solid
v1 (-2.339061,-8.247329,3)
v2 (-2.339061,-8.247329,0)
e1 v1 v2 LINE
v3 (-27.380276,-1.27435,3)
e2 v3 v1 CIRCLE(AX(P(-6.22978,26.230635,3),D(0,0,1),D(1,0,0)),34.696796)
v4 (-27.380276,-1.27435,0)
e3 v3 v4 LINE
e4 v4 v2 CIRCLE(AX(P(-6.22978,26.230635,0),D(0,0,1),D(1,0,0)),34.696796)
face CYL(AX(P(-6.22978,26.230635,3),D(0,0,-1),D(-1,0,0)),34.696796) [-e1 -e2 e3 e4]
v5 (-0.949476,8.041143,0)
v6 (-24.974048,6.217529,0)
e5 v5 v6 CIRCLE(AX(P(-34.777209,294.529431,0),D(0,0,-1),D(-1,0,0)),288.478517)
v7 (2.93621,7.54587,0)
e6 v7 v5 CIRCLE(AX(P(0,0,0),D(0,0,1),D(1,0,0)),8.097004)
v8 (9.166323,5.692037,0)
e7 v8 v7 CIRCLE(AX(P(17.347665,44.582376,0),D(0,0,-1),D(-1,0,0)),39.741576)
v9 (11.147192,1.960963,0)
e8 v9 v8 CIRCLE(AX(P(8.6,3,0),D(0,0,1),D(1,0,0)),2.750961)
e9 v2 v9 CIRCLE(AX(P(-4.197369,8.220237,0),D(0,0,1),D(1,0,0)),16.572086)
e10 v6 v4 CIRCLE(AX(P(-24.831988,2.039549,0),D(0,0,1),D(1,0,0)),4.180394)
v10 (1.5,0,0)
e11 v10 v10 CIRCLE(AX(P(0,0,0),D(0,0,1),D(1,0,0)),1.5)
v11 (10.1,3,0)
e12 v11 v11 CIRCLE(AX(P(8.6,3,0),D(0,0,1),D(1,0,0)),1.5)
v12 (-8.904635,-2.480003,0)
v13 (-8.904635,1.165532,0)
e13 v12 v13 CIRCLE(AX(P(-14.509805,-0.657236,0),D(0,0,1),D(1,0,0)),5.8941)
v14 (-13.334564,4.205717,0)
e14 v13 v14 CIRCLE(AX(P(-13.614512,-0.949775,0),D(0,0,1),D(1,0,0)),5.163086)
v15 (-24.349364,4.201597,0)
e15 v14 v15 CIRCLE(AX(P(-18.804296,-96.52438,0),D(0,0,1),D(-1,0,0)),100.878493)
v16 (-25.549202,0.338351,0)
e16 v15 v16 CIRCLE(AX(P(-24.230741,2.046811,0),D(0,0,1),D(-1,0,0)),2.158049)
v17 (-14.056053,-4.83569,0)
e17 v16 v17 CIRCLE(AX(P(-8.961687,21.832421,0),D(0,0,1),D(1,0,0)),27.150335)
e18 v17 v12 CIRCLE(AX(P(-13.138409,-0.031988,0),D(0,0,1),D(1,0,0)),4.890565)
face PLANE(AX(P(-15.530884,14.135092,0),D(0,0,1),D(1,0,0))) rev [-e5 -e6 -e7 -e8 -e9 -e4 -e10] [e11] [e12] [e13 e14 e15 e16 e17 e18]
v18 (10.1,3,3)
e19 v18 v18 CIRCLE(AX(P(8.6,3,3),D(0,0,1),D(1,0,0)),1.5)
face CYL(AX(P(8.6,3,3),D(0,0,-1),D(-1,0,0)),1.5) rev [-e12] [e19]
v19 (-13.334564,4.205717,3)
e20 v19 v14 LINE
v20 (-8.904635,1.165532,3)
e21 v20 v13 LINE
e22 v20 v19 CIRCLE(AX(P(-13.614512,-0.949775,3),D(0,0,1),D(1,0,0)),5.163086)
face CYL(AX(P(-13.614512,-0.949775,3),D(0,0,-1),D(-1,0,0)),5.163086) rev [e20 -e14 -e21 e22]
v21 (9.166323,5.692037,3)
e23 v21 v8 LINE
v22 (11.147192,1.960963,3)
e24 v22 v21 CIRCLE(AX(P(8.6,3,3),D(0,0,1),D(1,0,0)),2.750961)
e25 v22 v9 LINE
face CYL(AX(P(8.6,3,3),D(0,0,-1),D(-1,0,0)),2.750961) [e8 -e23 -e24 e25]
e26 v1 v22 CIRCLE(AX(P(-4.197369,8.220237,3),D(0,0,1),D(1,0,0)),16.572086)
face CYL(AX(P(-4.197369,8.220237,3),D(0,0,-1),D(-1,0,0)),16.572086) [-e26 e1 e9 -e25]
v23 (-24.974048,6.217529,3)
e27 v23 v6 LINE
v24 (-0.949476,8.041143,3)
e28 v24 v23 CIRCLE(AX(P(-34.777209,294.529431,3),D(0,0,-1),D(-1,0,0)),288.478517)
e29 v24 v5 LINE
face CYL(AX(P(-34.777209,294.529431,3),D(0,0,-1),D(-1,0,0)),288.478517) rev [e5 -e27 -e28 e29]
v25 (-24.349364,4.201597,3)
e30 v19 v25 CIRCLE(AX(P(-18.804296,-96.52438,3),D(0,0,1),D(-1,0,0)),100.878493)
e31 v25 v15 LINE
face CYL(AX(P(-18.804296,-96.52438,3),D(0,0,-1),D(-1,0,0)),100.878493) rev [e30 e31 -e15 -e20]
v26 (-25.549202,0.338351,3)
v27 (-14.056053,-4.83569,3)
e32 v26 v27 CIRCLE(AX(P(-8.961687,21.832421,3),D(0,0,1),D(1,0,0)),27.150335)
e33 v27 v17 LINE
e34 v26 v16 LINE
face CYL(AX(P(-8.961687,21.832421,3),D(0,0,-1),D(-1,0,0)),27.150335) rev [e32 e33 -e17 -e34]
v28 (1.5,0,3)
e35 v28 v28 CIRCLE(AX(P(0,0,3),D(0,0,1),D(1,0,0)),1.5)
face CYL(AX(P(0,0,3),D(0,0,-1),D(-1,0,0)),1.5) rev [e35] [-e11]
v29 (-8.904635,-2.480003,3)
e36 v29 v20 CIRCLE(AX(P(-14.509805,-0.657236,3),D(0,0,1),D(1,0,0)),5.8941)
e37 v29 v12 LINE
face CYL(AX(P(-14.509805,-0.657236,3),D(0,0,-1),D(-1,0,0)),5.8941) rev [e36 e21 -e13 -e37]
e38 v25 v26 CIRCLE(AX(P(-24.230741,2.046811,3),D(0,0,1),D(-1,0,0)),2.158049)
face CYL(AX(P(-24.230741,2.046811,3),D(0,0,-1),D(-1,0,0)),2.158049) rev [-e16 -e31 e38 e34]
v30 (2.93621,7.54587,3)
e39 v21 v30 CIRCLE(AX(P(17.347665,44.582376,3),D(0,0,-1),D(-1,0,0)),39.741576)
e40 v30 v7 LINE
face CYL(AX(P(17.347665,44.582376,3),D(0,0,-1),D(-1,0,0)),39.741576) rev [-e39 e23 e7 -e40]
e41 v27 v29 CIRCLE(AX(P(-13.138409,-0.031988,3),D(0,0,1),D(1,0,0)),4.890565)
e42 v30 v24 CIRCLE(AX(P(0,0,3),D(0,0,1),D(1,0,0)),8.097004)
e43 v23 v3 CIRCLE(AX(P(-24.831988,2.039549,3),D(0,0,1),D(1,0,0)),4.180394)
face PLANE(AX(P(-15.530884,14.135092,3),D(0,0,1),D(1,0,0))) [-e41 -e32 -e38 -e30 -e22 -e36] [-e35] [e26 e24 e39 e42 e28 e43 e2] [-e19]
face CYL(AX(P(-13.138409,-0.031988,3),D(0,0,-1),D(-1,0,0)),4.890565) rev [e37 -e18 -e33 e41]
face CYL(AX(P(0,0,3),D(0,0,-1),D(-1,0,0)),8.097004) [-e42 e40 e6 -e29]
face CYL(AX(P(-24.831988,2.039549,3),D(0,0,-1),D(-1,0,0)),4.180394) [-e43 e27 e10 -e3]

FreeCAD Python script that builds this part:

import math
import FreeCAD as App
import Part
import Sketcher
from FreeCAD import Vector
Q = App.Units.Quantity

doc = App.newDocument("Part")
params = doc.addObject("Spreadsheet::Sheet", "Params")
for row, (alias, value) in enumerate([
    ("sketch1_diameter", "3 mm"),
    ("pad1_length", "3 mm"),
], start=1):
    params.set(f"A{row}", alias)
    params.set(f"B{row}", "=" + value)
    params.setAlias(f"B{row}", alias)

body = doc.addObject("PartDesign::Body", "Body")

# Sketch on XY plane
sketch1 = body.newObject("Sketcher::SketchObject", "Sketch")
sketch1.AttachmentSupport = (doc.getObject("XY_Plane"), [""])
sketch1.MapMode = "FlatFace"
sketch1.addGeometry(Part.ArcOfCircle(Part.Circle(Vector(-6.22978, 26.230635, 0), Vector(0, 0, 1), 34.696796), math.radians(-127.559189), math.radians(-83.561607)), False)
sketch1.addGeometry(Part.ArcOfCircle(Part.Circle(Vector(-4.197369, 8.220237, 0), Vector(0, 0, 1), 16.572086), math.radians(-83.561607), math.radians(-22.191279)), False)
sketch1.addGeometry(Part.ArcOfCircle(Part.Circle(Vector(8.6, 3, 0), Vector(0, 0, 1), 2.750961), math.radians(-22.191279), math.radians(78.119944)), False)
sketch1.addGeometry(Part.ArcOfCircle(Part.Circle(Vector(17.347665, 44.582376, 0), Vector(0, 0, 1), 39.741576), math.radians(-111.261751), math.radians(-101.880056)), False)
sketch1.addGeometry(Part.ArcOfCircle(Part.Circle(Vector(0, 0, 0), Vector(0, 0, 1), 8.097004), math.radians(68.738249), math.radians(96.734144)), False)
sketch1.addGeometry(Part.ArcOfCircle(Part.Circle(Vector(-34.777209, 294.52943, 0), Vector(0, 0, 1), 288.478517), math.radians(-88.052583), math.radians(-83.265856)), False)
sketch1.addGeometry(Part.ArcOfCircle(Part.Circle(Vector(-24.831988, 2.039549, 0), Vector(0, 0, 1), 4.180394), math.radians(91.947417), math.radians(232.440811)), False)
sketch1.addGeometry(Part.ArcOfCircle(Part.Circle(Vector(-8.961687, 21.832421, 0), Vector(0, 0, 1), 27.150335), math.radians(-127.658275), math.radians(-100.814825)), False)
sketch1.addGeometry(Part.ArcOfCircle(Part.Circle(Vector(-24.230741, 2.046811, 0), Vector(0, 0, 1), 2.158049), math.radians(93.151011), math.radians(232.341726)), False)
sketch1.addGeometry(Part.ArcOfCircle(Part.Circle(Vector(-18.804296, -96.52438, 0), Vector(0, 0, 1), 100.878493), math.radians(86.891842), math.radians(93.151011)), False)
sketch1.addGeometry(Part.ArcOfCircle(Part.Circle(Vector(-13.614512, -0.949775, 0), Vector(0, 0, 1), 5.163086), math.radians(24.185866), math.radians(86.891842)), False)
sketch1.addGeometry(Part.ArcOfCircle(Part.Circle(Vector(-14.509805, -0.657236, 0), Vector(0, 0, 1), 5.8941), math.radians(-18.014212), math.radians(18.014212)), False)
sketch1.addGeometry(Part.ArcOfCircle(Part.Circle(Vector(-13.138409, -0.031988, 0), Vector(0, 0, 1), 4.890565), math.radians(-100.814825), math.radians(-30.036978)), False)
sketch1.addGeometry(Part.Circle(Vector(0, 0, 0), Vector(0, 0, 1), 1.5), False)
sketch1.addGeometry(Part.Circle(Vector(8.6, 3, 0), Vector(0, 0, 1), 1.5), False)
sketch1.addConstraint(Sketcher.Constraint("Tangent", 0, 2, 1, 1))
sketch1.addConstraint(Sketcher.Constraint("Tangent", 1, 2, 2, 1))
sketch1.addConstraint(Sketcher.Constraint("Tangent", 2, 2, 3, 2))
sketch1.addConstraint(Sketcher.Constraint("Tangent", 3, 1, 4, 1))
sketch1.addConstraint(Sketcher.Constraint("Tangent", 4, 2, 5, 2))
sketch1.addConstraint(Sketcher.Constraint("Tangent", 5, 1, 6, 1))
sketch1.addConstraint(Sketcher.Constraint("Tangent", 6, 2, 0, 1))
sketch1.addConstraint(Sketcher.Constraint("Tangent", 7, 1, 8, 2))
sketch1.addConstraint(Sketcher.Constraint("Tangent", 8, 1, 9, 2))
sketch1.addConstraint(Sketcher.Constraint("Tangent", 9, 1, 10, 2))
sketch1.addConstraint(Sketcher.Constraint("Coincident", 10, 1, 11, 2))
sketch1.addConstraint(Sketcher.Constraint("Coincident", 11, 1, 12, 2))
sketch1.addConstraint(Sketcher.Constraint("Tangent", 12, 1, 7, 2))
sketch1.addConstraint(Sketcher.Constraint("Coincident", 4, 3, -1, 1))
sketch1.addConstraint(Sketcher.Constraint("Coincident", 13, 3, -1, 1))
sketch1.addConstraint(Sketcher.Constraint("Coincident", 14, 3, 2, 3))
sketch1.addConstraint(Sketcher.Constraint("Equal", 13, 14))
sketch1.addConstraint(Sketcher.Constraint("Vertical", 10, 1, 11, 1))
sketch1.addConstraint(Sketcher.Constraint("Diameter", 13, Q("3 mm")))
sketch1.addConstraint(Sketcher.Constraint("DistanceY", -1, 1, 2, 3, Q("3 mm")))
sketch1.addConstraint(Sketcher.Constraint("DistanceX", -1, 1, 2, 3, Q("8.6 mm")))
sketch1.addConstraint(Sketcher.Constraint("Radius", 11, Q("5.8941 mm")))
sketch1.addConstraint(Sketcher.Constraint("Radius", 2, Q("2.750961 mm")))
sketch1.addConstraint(Sketcher.Constraint("Radius", 8, Q("2.158049 mm")))
sketch1.addConstraint(Sketcher.Constraint("Radius", 0, Q("34.696796 mm")))
sketch1.addConstraint(Sketcher.Constraint("Radius", 1, Q("16.572086 mm")))
sketch1.addConstraint(Sketcher.Constraint("Radius", 3, Q("39.741576 mm")))
sketch1.addConstraint(Sketcher.Constraint("Radius", 4, Q("8.097004 mm")))
sketch1.addConstraint(Sketcher.Constraint("Radius", 5, Q("288.478517 mm")))
sketch1.addConstraint(Sketcher.Constraint("Radius", 6, Q("4.180394 mm")))
sketch1.addConstraint(Sketcher.Constraint("Radius", 7, Q("27.150335 mm")))
sketch1.addConstraint(Sketcher.Constraint("Radius", 9, Q("100.878493 mm")))
sketch1.addConstraint(Sketcher.Constraint("Radius", 10, Q("5.163086 mm")))
sketch1.addConstraint(Sketcher.Constraint("Radius", 12, Q("4.890565 mm")))
sketch1.addConstraint(Sketcher.Constraint("DistanceX", 6, 3, 7, 3, Q("15.870302 mm")))
sketch1.addConstraint(Sketcher.Constraint("DistanceY", 12, 3, 8, 3, Q("2.078799 mm")))
sketch1.addConstraint(Sketcher.Constraint("DistanceX", 4, 2, 2, 2, Q("10.115798 mm")))
sketch1.addConstraint(Sketcher.Constraint("DistanceY", 6, 2, 6, 3, Q("3.313899 mm")))
sketch1.addConstraint(Sketcher.Constraint("DistanceY", 6, 2, 7, 1, Q("1.612701 mm")))
sketch1.addConstraint(Sketcher.Constraint("DistanceX", 8, 1, 9, 1, Q("11.0148 mm")))
sketch1.addConstraint(Sketcher.Constraint("DistanceX", 0, 3, -1, 1, Q("6.22978 mm")))
sketch1.addConstraint(Sketcher.Constraint("DistanceY", -1, 1, 7, 3, Q("21.832421 mm")))
sketch1.addConstraint(Sketcher.Constraint("DistanceY", 9, 3, -1, 1, Q("96.52438 mm")))
sketch1.addConstraint(Sketcher.Constraint("DistanceY", -1, 1, 10, 1, Q("1.165532 mm")))
sketch1.setExpression("Constraints[18]", "Params.sketch1_diameter")
pad1 = body.newObject("PartDesign::Pad", "Pad")
pad1.Profile = sketch1
pad1.setExpression("Length", "Params.pad1_length")

doc.recompute()
